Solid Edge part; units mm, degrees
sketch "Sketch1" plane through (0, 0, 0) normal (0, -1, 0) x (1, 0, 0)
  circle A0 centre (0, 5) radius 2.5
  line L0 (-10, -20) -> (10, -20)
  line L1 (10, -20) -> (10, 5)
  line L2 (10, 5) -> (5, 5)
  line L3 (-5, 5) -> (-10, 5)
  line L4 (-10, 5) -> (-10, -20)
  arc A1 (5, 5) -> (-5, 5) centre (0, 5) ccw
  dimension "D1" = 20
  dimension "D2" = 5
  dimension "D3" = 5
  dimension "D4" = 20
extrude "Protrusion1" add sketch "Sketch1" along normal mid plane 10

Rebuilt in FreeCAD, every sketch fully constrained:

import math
import FreeCAD as App
import Part
import Sketcher
from FreeCAD import Vector

doc = App.newDocument("Part")
body = doc.addObject("PartDesign::Body", "Body")

# Sketch on XZ plane
sketch1 = body.newObject("Sketcher::SketchObject", "Sketch")
sketch1.AttachmentSupport = (doc.getObject("XZ_Plane"), [""])
sketch1.MapMode = "FlatFace"
sketch1.addGeometry([
    Part.LineSegment(Vector(-10, 5, 0), Vector(-10, -20, 0)),  # 0
    Part.LineSegment(Vector(-10, -20, 0), Vector(10, -20, 0)),  # 1
    Part.LineSegment(Vector(10, -20, 0), Vector(10, 5, 0)),  # 2
    Part.LineSegment(Vector(10, 5, 0), Vector(5, 5, 0)),  # 3
    Part.ArcOfCircle(Part.Circle(Vector(0, 5, 0), Vector(0, 0, 1), 5), math.radians(0), math.radians(180)),  # 4
    Part.LineSegment(Vector(-5, 5, 0), Vector(-10, 5, 0)),  # 5
    Part.Circle(Vector(0, 5, 0), Vector(0, 0, 1), 2.5),  # 6
], False)
sketch1.addConstraint([
    Sketcher.Constraint("Coincident", 0, 2, 1, 1),
    Sketcher.Constraint("Coincident", 1, 2, 2, 1),
    Sketcher.Constraint("Coincident", 2, 2, 3, 1),
    Sketcher.Constraint("Coincident", 3, 2, 4, 1),
    Sketcher.Constraint("Coincident", 4, 2, 5, 1),
    Sketcher.Constraint("Coincident", 5, 2, 0, 1),
    Sketcher.Constraint("Vertical", 0),
    Sketcher.Constraint("Horizontal", 1),
    Sketcher.Constraint("Vertical", 2),
    Sketcher.Constraint("Horizontal", 3),
    Sketcher.Constraint("Horizontal", 5),
    Sketcher.Constraint("Coincident", 6, 3, 4, 3),
    Sketcher.Constraint("Symmetric", 3, 2, 4, 2, -2),
    Sketcher.Constraint("Horizontal", 6, 3, 2, 2),
    Sketcher.Constraint("Equal", 3, 5),
    Sketcher.Constraint("Radius", 4, 5.0),
    Sketcher.Constraint("Diameter", 6, 5.0),
    Sketcher.Constraint("DistanceX", 0, 2, -1, 1, 10.0),
    Sketcher.Constraint("DistanceY", 0, 2, 0, 1, 25.0),
    Sketcher.Constraint("DistanceY", -1, 1, 4, 3, 5.0),
])
pad1 = body.newObject("PartDesign::Pad", "Pad")
pad1.Profile = sketch1
pad1.Length = 10
pad1.Midplane = True

doc.recompute()
